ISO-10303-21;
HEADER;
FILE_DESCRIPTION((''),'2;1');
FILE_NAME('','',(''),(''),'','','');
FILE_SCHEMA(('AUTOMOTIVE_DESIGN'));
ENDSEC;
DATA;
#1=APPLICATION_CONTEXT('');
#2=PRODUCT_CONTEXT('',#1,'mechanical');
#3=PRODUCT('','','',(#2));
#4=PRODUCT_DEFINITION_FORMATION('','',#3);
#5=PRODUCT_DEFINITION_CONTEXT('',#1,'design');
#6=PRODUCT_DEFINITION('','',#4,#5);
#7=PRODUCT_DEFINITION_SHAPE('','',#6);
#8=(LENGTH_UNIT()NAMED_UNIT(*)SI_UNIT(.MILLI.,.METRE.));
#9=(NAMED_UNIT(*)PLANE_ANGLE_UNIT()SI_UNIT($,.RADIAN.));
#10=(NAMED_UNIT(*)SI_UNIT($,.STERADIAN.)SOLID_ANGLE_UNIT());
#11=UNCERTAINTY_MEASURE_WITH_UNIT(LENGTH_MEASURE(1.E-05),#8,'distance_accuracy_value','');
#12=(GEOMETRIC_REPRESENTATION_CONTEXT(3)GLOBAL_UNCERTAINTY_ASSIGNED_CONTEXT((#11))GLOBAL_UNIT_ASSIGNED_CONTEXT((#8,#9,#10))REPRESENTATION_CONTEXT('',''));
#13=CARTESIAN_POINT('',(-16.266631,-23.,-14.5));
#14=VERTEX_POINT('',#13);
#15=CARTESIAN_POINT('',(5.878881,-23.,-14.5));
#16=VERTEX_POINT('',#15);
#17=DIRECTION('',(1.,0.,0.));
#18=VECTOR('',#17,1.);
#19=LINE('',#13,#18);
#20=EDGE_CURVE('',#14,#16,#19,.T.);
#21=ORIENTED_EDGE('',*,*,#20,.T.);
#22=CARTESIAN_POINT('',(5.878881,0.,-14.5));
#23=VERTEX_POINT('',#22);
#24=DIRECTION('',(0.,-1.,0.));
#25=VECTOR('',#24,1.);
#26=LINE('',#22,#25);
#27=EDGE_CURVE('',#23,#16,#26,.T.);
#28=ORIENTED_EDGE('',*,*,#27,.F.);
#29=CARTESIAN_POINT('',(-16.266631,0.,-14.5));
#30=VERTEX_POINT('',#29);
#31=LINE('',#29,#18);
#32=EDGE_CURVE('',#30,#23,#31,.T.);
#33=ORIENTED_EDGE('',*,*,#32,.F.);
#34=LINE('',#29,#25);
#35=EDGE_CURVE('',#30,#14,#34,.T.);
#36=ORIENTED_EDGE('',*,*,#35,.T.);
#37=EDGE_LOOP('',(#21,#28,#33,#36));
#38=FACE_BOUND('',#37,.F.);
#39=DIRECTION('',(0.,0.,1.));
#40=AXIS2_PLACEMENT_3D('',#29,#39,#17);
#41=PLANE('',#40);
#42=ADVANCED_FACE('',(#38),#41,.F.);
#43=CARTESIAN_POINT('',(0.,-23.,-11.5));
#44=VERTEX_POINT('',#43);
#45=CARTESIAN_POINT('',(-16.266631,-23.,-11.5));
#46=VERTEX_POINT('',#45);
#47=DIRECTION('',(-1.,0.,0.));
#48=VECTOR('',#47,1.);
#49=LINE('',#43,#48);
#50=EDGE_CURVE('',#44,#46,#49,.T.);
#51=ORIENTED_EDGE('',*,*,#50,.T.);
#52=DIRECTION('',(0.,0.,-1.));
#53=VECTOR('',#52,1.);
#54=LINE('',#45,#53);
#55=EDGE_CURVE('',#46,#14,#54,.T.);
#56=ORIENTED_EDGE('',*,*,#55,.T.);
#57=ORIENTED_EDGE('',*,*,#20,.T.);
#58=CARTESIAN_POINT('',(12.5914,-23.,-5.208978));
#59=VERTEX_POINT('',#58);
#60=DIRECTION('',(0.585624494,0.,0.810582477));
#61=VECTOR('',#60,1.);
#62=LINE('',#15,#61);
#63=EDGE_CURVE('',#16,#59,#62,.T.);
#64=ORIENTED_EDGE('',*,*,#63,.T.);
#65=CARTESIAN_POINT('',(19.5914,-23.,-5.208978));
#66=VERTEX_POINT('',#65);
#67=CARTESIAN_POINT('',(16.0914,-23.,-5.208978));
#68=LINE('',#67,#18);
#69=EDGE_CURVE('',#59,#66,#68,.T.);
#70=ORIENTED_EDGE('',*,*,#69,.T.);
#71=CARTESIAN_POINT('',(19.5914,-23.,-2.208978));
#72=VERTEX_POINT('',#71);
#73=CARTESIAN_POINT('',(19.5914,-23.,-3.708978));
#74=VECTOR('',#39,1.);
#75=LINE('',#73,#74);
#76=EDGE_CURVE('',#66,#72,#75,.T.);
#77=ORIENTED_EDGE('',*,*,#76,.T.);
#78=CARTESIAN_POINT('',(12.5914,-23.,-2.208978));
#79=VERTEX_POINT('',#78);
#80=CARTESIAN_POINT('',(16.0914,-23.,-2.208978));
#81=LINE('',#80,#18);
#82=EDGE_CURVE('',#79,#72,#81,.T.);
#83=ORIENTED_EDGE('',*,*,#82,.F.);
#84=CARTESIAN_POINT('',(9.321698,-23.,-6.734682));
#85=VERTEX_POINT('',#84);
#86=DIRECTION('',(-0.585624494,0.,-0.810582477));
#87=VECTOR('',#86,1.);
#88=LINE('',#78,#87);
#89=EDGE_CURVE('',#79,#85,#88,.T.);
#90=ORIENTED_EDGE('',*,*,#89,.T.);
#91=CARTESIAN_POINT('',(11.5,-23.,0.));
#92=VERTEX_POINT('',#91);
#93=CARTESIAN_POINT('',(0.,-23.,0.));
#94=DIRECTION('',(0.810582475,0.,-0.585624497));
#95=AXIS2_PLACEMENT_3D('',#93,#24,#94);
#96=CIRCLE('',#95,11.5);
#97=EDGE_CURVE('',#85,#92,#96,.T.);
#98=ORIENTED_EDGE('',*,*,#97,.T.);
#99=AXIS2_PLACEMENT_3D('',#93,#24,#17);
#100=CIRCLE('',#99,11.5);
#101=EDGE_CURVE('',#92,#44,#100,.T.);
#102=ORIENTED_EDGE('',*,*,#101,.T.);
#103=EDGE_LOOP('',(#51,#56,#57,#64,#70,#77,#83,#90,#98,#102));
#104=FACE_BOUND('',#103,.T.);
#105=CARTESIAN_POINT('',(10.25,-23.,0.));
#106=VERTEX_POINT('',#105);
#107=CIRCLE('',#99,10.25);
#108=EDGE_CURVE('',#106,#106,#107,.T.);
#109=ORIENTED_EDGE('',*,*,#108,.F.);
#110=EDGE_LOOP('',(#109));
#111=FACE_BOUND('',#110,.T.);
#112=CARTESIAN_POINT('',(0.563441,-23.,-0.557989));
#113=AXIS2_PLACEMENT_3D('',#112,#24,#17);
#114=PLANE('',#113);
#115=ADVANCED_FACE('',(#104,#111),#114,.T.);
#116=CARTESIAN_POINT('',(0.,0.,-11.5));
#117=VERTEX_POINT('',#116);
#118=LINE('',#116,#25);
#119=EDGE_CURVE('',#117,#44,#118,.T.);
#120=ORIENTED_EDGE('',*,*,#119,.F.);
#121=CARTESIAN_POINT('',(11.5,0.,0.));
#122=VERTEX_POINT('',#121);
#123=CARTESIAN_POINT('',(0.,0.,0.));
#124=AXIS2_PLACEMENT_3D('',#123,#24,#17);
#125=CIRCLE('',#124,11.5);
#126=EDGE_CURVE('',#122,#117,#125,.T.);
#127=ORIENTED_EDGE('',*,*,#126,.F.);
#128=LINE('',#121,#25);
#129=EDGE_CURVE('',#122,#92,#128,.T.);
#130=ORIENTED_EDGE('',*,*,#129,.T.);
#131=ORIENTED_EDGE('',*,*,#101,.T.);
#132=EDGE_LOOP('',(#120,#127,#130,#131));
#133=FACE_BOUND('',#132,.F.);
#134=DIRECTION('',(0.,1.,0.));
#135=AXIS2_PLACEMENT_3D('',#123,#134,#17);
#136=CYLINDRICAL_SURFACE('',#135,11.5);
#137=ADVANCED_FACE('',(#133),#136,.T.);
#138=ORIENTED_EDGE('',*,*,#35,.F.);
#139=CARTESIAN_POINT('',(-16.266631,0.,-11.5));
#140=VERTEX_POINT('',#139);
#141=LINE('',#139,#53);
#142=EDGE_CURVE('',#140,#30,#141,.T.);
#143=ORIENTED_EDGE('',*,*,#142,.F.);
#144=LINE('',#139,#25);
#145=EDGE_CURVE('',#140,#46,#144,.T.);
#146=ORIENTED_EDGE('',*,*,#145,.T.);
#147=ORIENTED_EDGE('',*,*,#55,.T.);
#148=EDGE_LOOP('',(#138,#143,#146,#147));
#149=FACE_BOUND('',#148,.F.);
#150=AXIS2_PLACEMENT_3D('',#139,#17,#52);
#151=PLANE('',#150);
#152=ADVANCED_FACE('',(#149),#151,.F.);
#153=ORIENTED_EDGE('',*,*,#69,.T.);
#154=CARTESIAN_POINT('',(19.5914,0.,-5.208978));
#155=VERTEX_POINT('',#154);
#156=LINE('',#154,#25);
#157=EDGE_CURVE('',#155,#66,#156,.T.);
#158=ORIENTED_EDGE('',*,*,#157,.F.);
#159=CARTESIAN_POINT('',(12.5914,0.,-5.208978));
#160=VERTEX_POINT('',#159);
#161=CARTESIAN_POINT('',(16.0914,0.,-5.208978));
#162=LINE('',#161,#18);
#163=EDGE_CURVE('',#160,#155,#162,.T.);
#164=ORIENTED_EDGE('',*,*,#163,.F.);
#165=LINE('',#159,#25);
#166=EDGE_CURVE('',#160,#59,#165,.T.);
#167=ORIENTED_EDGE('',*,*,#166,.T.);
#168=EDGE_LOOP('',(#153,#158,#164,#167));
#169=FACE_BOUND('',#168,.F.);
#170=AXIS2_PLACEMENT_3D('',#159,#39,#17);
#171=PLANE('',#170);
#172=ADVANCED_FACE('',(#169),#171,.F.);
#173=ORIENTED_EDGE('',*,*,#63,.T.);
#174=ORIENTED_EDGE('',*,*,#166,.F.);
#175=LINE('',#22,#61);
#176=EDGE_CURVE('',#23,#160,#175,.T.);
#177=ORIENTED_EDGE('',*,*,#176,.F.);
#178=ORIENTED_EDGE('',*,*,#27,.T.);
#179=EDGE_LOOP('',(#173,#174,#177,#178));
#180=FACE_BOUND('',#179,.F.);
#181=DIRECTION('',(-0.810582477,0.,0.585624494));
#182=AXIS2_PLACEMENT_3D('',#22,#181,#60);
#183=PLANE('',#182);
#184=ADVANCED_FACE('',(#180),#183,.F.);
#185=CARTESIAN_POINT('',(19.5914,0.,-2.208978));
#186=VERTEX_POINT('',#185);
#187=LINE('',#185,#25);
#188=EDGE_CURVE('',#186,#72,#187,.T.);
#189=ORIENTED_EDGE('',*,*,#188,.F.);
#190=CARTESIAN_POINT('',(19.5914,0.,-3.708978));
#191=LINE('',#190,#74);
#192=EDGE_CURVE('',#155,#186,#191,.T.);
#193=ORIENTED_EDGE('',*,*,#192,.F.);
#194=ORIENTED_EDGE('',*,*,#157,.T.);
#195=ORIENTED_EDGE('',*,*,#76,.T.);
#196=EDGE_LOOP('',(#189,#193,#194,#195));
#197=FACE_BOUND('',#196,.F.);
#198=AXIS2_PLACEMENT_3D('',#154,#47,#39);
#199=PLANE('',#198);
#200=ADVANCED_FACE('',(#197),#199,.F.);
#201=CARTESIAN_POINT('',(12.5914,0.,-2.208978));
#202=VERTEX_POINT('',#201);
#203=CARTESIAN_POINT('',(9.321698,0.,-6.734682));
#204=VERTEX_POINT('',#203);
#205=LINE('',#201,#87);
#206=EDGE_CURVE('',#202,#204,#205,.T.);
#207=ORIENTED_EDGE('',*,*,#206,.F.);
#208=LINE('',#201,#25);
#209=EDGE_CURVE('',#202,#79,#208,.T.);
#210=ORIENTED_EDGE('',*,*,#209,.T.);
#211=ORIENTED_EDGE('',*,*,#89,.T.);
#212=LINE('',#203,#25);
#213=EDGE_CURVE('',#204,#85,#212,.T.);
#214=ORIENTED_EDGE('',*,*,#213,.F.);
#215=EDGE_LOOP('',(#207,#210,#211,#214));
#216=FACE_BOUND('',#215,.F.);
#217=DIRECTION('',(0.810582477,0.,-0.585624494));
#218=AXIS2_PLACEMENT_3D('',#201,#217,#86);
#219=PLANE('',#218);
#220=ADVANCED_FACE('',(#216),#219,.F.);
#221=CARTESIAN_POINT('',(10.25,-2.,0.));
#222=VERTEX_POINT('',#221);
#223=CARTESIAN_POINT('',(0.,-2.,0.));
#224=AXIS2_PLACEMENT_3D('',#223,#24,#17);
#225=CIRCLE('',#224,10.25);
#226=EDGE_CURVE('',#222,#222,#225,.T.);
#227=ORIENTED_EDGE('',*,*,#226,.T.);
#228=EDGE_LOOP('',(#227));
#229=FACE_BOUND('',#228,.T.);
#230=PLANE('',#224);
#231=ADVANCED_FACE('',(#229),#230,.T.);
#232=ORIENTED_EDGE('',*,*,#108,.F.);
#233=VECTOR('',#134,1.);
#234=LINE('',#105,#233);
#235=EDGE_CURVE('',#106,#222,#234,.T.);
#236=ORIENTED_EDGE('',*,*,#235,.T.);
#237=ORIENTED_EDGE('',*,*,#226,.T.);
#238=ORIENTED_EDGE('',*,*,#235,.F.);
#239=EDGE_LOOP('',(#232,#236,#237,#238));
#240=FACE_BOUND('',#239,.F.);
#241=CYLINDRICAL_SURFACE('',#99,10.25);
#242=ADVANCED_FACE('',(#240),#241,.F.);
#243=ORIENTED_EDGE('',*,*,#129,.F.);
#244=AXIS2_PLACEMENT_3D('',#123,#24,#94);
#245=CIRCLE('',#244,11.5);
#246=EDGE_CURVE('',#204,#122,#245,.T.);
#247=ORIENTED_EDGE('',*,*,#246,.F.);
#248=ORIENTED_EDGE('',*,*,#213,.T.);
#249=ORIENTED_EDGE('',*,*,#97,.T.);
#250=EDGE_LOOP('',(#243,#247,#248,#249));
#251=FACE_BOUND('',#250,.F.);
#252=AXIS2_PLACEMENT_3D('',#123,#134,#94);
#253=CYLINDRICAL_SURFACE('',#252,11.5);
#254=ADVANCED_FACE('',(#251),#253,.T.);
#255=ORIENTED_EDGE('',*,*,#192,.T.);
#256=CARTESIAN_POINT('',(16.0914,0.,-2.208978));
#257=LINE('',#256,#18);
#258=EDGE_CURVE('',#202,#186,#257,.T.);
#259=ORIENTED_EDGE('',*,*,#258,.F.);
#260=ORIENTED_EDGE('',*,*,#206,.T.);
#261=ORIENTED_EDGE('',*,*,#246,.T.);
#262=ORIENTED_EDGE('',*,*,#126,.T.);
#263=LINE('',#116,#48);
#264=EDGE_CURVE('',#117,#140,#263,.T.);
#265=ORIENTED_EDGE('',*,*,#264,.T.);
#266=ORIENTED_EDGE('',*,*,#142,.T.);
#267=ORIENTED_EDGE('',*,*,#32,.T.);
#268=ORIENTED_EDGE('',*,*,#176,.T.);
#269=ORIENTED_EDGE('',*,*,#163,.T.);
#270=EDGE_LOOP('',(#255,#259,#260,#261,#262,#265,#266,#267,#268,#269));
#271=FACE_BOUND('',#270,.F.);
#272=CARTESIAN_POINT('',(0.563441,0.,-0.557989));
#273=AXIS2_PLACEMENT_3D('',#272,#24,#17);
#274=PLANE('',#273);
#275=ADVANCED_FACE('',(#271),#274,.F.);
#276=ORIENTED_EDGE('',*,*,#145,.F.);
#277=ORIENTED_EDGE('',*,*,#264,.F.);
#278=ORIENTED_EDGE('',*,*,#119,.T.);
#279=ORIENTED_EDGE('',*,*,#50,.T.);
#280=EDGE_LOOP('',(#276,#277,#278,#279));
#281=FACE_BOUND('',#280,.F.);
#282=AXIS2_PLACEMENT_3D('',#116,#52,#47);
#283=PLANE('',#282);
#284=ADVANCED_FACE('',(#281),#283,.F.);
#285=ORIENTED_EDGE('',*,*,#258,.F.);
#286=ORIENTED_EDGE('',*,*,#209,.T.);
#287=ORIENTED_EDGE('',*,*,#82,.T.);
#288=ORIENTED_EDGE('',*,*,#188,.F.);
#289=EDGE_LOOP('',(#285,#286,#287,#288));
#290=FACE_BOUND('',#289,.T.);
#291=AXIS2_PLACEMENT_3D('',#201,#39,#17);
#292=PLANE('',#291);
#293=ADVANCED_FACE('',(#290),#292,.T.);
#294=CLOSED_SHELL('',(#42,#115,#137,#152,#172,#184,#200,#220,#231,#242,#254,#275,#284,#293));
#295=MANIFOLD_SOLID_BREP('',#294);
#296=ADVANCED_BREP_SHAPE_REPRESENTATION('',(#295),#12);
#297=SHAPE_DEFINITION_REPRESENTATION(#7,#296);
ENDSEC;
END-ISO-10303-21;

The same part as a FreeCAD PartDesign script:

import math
import FreeCAD as App
import Part
import Sketcher

doc = App.newDocument("Part")
body = doc.addObject("PartDesign::Body", "Body")

sketch1 = body.newObject("Sketcher::SketchObject", "Sketch")
sketch1.AttachmentSupport = (doc.getObject("XZ_Plane"), [""])
sketch1.MapMode = "FlatFace"
sketch1.addGeometry([
    Part.ArcOfCircle(Part.Circle(App.Vector(0, 0, 0), App.Vector(0, 0, 1), 11.5), math.radians(-35.84712), math.radians(0)),
    Part.ArcOfCircle(Part.Circle(App.Vector(0, 0, 0), App.Vector(0, 0, 1), 11.5), math.radians(0), math.radians(270)),
    Part.LineSegment(App.Vector(0, -11.5, 0), App.Vector(-16.266631, -11.5, 0)),
    Part.LineSegment(App.Vector(-16.266631, -11.5, 0), App.Vector(-16.266631, -14.5, 0)),
    Part.LineSegment(App.Vector(-16.266631, -14.5, 0), App.Vector(5.878881, -14.5, 0)),
    Part.LineSegment(App.Vector(5.878881, -14.5, 0), App.Vector(12.5914, -5.208978, 0)),
    Part.LineSegment(App.Vector(12.5914, -5.208978, 0), App.Vector(19.5914, -5.208978, 0)),
    Part.LineSegment(App.Vector(19.5914, -5.208978, 0), App.Vector(19.5914, -2.208978, 0)),
    Part.LineSegment(App.Vector(19.5914, -2.208978, 0), App.Vector(12.5914, -2.208978, 0)),
    Part.LineSegment(App.Vector(12.5914, -2.208978, 0), App.Vector(9.321698, -6.734682, 0)),
], False)
sketch1.addConstraint([
    Sketcher.Constraint("Tangent", 0, 2, 1, 1),
    Sketcher.Constraint("Tangent", 1, 2, 2, 1),
    Sketcher.Constraint("Coincident", 2, 2, 3, 1),
    Sketcher.Constraint("Coincident", 3, 2, 4, 1),
    Sketcher.Constraint("Coincident", 4, 2, 5, 1),
    Sketcher.Constraint("Coincident", 5, 2, 6, 1),
    Sketcher.Constraint("Coincident", 6, 2, 7, 1),
    Sketcher.Constraint("Coincident", 7, 2, 8, 1),
    Sketcher.Constraint("Coincident", 8, 2, 9, 1),
    Sketcher.Constraint("Tangent", 9, 2, 0, 1),
    Sketcher.Constraint("Horizontal", 2),
    Sketcher.Constraint("Vertical", 3),
    Sketcher.Constraint("Horizontal", 4),
    Sketcher.Constraint("Horizontal", 6),
    Sketcher.Constraint("Vertical", 7),
    Sketcher.Constraint("Horizontal", 8),
    Sketcher.Constraint("Coincident", 0, 3, -1, 1),
    Sketcher.Constraint("Equal", 0, 1),
    Sketcher.Constraint("PointOnObject", 0, 2, -1),
    Sketcher.Constraint("Parallel", 5, 9),
    Sketcher.Constraint("Vertical", 5, 2, 8, 2),
    Sketcher.Constraint("Equal", 3, 7),
    Sketcher.Constraint("Radius", 0, 11.5),
    Sketcher.Constraint("DistanceX", 6, 1, 6, 2, 7.0),
    Sketcher.Constraint("DistanceY", 3, 2, 3, 1, 3.0),
    Sketcher.Constraint("DistanceX", 2, 2, 2, 1, 16.266631),
    Sketcher.Constraint("DistanceX", -1, 1, 5, 2, 12.5914),
    Sketcher.Constraint("DistanceX", -1, 1, 9, 2, 9.321698),
])
pad1 = body.newObject("PartDesign::Pad", "Pad")
pad1.Profile = sketch1
pad1.Length = 23

sketch2 = body.newObject("Sketcher::SketchObject", "Sketch001")
sketch2.AttachmentSupport = (doc.getObject("XZ_Plane"), [""])
sketch2.MapMode = "FlatFace"
sketch2.AttachmentOffset = App.Placement(App.Vector(0, 0, 23), App.Rotation())
sketch2.addGeometry(Part.Circle(App.Vector(0, 0, 0), App.Vector(0, 0, 1), 10.25), False)
sketch2.addConstraint([
    Sketcher.Constraint("Coincident", 0, 3, -1, 1),
    Sketcher.Constraint("Diameter", 0, 20.5),
])
pocket1 = body.newObject("PartDesign::Pocket", "Pocket")
pocket1.Profile = sketch2
pocket1.Length = 21

doc.recompute()
